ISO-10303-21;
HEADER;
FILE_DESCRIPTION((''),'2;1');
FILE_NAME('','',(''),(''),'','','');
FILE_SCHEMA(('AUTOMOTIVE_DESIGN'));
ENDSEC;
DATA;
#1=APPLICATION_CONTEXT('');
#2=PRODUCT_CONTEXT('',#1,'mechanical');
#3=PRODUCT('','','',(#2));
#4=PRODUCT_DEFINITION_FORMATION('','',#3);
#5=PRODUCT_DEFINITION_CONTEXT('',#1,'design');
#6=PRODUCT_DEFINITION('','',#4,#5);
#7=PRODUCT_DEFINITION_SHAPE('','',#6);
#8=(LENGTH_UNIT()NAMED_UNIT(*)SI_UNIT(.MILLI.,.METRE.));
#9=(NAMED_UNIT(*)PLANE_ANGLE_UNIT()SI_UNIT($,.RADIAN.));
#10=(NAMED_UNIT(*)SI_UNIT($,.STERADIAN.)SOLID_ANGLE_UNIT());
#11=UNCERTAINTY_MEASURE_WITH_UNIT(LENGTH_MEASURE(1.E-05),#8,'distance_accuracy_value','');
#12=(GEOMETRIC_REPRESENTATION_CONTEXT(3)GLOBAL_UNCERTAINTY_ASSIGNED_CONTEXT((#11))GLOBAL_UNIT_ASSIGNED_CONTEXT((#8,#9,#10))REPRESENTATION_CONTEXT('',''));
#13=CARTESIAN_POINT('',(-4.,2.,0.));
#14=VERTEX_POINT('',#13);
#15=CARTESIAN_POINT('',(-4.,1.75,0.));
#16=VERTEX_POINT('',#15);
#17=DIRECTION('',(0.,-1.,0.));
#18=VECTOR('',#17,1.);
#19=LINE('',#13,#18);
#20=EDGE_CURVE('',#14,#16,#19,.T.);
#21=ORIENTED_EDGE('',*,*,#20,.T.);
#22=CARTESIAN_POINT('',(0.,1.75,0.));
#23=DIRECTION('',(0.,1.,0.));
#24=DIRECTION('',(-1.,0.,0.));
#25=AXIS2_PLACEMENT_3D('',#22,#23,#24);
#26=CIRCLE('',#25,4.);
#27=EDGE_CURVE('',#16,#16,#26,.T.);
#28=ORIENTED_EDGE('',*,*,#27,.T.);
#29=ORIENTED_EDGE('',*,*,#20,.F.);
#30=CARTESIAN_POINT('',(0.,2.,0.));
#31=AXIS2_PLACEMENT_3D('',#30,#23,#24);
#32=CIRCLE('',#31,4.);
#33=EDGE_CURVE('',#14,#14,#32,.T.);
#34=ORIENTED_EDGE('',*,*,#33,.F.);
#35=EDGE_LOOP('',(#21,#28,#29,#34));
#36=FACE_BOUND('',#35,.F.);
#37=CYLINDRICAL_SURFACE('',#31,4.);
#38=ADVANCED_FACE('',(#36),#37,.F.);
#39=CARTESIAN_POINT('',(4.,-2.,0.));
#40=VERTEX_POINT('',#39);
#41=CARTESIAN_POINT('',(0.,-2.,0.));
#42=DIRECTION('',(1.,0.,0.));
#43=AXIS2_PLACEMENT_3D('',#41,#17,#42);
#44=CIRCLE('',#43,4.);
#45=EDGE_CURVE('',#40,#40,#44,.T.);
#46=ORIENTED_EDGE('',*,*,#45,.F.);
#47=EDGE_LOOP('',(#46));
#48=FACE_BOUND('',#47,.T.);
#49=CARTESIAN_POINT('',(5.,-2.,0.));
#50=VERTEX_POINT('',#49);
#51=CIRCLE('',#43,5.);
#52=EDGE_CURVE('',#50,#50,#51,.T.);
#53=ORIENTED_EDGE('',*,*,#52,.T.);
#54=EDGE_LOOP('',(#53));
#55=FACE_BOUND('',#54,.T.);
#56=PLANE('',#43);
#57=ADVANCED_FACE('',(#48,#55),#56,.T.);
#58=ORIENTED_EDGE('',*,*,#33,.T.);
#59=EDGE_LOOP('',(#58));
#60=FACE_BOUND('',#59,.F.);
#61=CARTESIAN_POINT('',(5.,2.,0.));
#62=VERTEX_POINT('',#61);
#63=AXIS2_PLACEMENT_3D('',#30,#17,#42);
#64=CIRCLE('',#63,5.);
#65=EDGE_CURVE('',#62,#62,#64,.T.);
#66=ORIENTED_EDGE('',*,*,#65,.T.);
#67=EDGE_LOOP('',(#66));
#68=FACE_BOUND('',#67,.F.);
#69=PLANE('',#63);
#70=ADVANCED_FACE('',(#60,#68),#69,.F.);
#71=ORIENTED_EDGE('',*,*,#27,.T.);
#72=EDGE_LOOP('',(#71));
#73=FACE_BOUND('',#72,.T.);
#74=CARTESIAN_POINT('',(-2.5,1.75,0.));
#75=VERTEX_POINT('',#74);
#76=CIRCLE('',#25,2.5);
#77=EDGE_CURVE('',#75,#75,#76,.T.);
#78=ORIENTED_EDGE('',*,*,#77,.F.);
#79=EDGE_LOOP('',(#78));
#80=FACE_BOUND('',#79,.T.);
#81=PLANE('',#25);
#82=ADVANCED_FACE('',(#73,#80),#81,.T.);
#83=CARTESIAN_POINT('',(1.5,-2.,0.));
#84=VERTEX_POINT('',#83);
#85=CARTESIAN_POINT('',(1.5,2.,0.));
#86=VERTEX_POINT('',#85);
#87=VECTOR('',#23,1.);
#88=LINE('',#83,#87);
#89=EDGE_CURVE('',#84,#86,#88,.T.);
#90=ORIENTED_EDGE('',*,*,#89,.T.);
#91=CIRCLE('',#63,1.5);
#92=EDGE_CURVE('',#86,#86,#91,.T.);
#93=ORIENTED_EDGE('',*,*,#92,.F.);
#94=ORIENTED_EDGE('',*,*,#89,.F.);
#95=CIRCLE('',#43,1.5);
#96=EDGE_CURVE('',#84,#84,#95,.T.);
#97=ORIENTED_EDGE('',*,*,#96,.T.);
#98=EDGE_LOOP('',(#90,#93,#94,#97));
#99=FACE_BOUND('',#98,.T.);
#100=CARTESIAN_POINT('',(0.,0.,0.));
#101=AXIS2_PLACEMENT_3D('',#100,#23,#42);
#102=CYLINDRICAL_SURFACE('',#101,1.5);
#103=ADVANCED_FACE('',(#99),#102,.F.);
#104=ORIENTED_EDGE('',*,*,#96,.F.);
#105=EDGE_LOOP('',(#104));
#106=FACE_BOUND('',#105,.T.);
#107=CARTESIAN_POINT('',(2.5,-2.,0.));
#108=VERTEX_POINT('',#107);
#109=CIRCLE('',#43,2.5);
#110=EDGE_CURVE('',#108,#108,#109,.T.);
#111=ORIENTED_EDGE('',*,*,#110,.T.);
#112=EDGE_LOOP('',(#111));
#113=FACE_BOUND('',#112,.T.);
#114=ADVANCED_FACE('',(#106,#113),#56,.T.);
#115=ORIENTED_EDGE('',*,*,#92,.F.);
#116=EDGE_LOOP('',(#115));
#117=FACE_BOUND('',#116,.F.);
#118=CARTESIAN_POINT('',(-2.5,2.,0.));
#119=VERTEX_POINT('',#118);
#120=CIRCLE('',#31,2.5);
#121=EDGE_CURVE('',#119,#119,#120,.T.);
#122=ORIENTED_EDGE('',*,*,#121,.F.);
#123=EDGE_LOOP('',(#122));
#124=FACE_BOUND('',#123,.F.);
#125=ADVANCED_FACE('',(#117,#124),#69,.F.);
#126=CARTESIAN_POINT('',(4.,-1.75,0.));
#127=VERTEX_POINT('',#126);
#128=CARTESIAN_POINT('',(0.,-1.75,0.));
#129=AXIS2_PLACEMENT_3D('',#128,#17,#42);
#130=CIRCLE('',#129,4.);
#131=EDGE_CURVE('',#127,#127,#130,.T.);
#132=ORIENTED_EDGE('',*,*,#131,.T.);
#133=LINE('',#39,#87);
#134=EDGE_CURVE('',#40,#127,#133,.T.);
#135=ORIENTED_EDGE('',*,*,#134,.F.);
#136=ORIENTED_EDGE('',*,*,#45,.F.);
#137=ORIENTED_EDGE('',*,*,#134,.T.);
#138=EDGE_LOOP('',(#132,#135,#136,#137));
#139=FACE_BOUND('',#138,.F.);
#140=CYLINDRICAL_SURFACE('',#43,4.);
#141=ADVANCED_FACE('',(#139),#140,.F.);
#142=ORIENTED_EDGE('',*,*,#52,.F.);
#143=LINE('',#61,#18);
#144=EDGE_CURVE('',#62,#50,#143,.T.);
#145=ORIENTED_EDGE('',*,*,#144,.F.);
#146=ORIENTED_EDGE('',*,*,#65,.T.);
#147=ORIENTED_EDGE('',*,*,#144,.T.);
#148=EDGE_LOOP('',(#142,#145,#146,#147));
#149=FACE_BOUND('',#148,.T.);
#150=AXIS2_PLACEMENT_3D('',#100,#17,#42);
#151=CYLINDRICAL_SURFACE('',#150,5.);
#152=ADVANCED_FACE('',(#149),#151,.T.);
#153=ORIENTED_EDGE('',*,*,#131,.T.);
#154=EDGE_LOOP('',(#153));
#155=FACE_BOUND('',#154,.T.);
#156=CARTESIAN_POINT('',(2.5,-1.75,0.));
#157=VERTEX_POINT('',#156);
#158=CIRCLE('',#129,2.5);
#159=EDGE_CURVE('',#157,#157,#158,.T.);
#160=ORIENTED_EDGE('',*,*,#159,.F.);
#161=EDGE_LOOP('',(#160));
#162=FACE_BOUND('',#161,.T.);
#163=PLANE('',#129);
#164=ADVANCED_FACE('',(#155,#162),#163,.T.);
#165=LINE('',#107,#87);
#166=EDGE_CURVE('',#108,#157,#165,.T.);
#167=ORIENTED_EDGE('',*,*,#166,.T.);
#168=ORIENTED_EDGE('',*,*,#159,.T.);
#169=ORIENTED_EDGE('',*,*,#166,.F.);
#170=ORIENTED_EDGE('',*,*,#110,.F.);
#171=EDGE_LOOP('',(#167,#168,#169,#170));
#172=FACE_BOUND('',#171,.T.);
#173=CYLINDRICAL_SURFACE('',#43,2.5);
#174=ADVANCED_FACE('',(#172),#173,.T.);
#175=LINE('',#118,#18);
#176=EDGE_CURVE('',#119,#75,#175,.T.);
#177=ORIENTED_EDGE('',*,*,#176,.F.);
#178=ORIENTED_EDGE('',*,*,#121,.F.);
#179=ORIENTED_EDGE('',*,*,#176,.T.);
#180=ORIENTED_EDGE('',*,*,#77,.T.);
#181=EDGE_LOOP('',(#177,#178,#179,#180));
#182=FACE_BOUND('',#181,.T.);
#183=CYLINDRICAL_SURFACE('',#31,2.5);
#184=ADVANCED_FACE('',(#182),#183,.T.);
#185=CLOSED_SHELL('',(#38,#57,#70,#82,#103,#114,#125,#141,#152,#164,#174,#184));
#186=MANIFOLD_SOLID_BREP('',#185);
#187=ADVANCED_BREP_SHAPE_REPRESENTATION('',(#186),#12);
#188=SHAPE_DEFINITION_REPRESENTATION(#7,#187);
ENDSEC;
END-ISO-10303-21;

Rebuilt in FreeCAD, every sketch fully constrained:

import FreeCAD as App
import Part
import Sketcher

doc = App.newDocument("Part")
params = doc.addObject("Spreadsheet::Sheet", "Params")
for row, (alias, value) in enumerate([
    ("sketch1_diameter", "10 mm"),
    ("sketch1_diameter2", "3 mm"),
    ("pad1_length", "4 mm"),
    ("sketch2_diameter", "8 mm"),
    ("sketch2_diameter2", "5 mm"),
    ("pocket1_length", "0.25 mm"),
    ("sketch3_diameter", "8 mm"),
    ("sketch3_diameter2", "5 mm"),
    ("pocket2_length", "0.25 mm"),
], start=1):
    params.set(f"A{row}", alias)
    params.set(f"B{row}", "=" + value)
    params.setAlias(f"B{row}", alias)

body = doc.addObject("PartDesign::Body", "Body")

# Sketch on XZ plane
sketch1 = body.newObject("Sketcher::SketchObject", "Sketch")
sketch1.AttachmentSupport = (doc.getObject("XZ_Plane"), [""])
sketch1.MapMode = "FlatFace"
sketch1.addGeometry(Part.Circle(App.Vector(0, 0, 0), App.Vector(0, 0, 1), 5), False)
sketch1.addGeometry(Part.Circle(App.Vector(0, 0, 0), App.Vector(0, 0, 1), 1.5), False)
sketch1.addConstraint(Sketcher.Constraint("Coincident", 0, 3, -1, 1))
sketch1.addConstraint(Sketcher.Constraint("Coincident", 1, 3, -1, 1))
sketch1.addConstraint(Sketcher.Constraint("Diameter", 0, 10.0))
sketch1.addConstraint(Sketcher.Constraint("Diameter", 1, 3.0))
sketch1.setExpression("Constraints[2]", "Params.sketch1_diameter")
sketch1.setExpression("Constraints[3]", "Params.sketch1_diameter2")
pad1 = body.newObject("PartDesign::Pad", "Pad")
pad1.Profile = sketch1
pad1.setExpression("Length", "Params.pad1_length")
pad1.Midplane = True

# Sketch on XZ plane
sketch2 = body.newObject("Sketcher::SketchObject", "Sketch001")
sketch2.AttachmentSupport = (doc.getObject("XZ_Plane"), [""])
sketch2.MapMode = "FlatFace"
sketch2.AttachmentOffset = App.Placement(App.Vector(0, 0, 2), App.Rotation())
sketch2.addGeometry(Part.Circle(App.Vector(0, 0, 0), App.Vector(0, 0, 1), 4), False)
sketch2.addGeometry(Part.Circle(App.Vector(0, 0, 0), App.Vector(0, 0, 1), 2.5), False)
sketch2.addConstraint(Sketcher.Constraint("Coincident", 0, 3, -1, 1))
sketch2.addConstraint(Sketcher.Constraint("Coincident", 1, 3, -1, 1))
sketch2.addConstraint(Sketcher.Constraint("Diameter", 0, 8.0))
sketch2.addConstraint(Sketcher.Constraint("Diameter", 1, 5.0))
sketch2.setExpression("Constraints[2]", "Params.sketch2_diameter")
sketch2.setExpression("Constraints[3]", "Params.sketch2_diameter2")
pocket1 = body.newObject("PartDesign::Pocket", "Pocket")
pocket1.Profile = sketch2
pocket1.setExpression("Length", "Params.pocket1_length")

# Sketch on XZ plane
sketch3 = body.newObject("Sketcher::SketchObject", "Sketch002")
sketch3.AttachmentSupport = (doc.getObject("XZ_Plane"), [""])
sketch3.MapMode = "FlatFace"
sketch3.AttachmentOffset = App.Placement(App.Vector(0, 0, -2), App.Rotation())
sketch3.addGeometry(Part.Circle(App.Vector(0, 0, 0), App.Vector(0, 0, 1), 4), False)
sketch3.addGeometry(Part.Circle(App.Vector(0, 0, 0), App.Vector(0, 0, 1), 2.5), False)
sketch3.addConstraint(Sketcher.Constraint("Coincident", 0, 3, -1, 1))
sketch3.addConstraint(Sketcher.Constraint("Coincident", 1, 3, -1, 1))
sketch3.addConstraint(Sketcher.Constraint("Diameter", 0, 8.0))
sketch3.addConstraint(Sketcher.Constraint("Diameter", 1, 5.0))
sketch3.setExpression("Constraints[2]", "Params.sketch3_diameter")
sketch3.setExpression("Constraints[3]", "Params.sketch3_diameter2")
pocket2 = body.newObject("PartDesign::Pocket", "Pocket001")
pocket2.Profile = sketch3
pocket2.setExpression("Length", "Params.pocket2_length")
pocket2.Reversed = True

doc.recompute()
